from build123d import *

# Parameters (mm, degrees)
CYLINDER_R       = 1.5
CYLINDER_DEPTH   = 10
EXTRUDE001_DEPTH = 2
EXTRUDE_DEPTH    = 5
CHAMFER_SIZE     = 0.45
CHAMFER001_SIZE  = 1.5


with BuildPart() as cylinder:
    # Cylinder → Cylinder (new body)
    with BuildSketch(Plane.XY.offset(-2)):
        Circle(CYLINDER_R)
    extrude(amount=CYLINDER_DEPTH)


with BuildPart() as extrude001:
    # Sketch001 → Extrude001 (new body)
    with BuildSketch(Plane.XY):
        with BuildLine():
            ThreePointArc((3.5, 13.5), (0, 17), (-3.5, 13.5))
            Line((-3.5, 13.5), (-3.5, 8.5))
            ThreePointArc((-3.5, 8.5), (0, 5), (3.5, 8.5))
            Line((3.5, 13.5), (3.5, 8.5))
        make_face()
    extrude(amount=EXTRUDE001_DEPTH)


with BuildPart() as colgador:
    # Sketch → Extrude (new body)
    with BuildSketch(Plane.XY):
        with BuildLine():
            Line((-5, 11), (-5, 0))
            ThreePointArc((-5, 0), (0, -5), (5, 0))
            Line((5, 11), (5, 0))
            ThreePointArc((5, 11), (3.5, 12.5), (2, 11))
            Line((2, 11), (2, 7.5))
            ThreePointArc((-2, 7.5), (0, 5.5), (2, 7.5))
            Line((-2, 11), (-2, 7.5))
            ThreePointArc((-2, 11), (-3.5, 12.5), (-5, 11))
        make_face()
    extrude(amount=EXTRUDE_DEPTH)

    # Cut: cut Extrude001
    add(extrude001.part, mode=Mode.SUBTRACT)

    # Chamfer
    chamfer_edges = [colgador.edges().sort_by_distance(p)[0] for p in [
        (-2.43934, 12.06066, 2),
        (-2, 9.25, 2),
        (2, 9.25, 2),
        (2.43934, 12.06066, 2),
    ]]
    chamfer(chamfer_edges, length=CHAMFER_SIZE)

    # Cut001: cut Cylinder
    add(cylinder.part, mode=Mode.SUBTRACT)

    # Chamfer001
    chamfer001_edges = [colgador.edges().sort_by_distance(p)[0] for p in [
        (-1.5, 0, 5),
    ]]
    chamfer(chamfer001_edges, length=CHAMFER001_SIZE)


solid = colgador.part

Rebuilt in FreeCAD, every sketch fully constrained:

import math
import FreeCAD as App
import Part
import Sketcher


def edges_at(feature, points):
    """Names of the edges that pass closest to the given points."""
    edges = feature.Shape.Edges
    near = lambda p: min(range(len(edges)), key=lambda i: edges[i].distToShape(Part.Vertex(*p))[0])
    return sorted({f"Edge{near(p) + 1}" for p in points})

doc = App.newDocument("Part")
body = doc.addObject("PartDesign::Body", "Body")

# Sketch on XY plane
sketch1 = body.newObject("Sketcher::SketchObject", "Sketch")
sketch1.AttachmentSupport = (doc.getObject("XY_Plane"), [""])
sketch1.MapMode = "FlatFace"
sketch1.AttachmentOffset = App.Placement(App.Vector(0, 0, -2), App.Rotation())
sketch1.addGeometry(Part.Circle(App.Vector(0, 0, 0), App.Vector(0, 0, 1), 1.5), False)
sketch1.addConstraint([
    Sketcher.Constraint("Coincident", 0, 3, -1, 1),
    Sketcher.Constraint("Diameter", 0, 3.0),
])
pad1 = body.newObject("PartDesign::Pad", "Pad")
pad1.Profile = sketch1
pad1.Length = 10
body2 = doc.addObject("PartDesign::Body", "Body001")

# Sketch on XY plane
sketch2 = body2.newObject("Sketcher::SketchObject", "Sketch001")
sketch2.AttachmentSupport = (doc.getObject("XY_Plane001"), [""])
sketch2.MapMode = "FlatFace"
sketch2.addGeometry([
    Part.ArcOfCircle(Part.Circle(App.Vector(0, 13.5, 0), App.Vector(0, 0, 1), 3.5), math.radians(0), math.radians(180)),
    Part.LineSegment(App.Vector(-3.5, 13.5, 0), App.Vector(-3.5, 8.5, 0)),
    Part.ArcOfCircle(Part.Circle(App.Vector(0, 8.5, 0), App.Vector(0, 0, 1), 3.5), math.radians(180), math.radians(360)),
    Part.LineSegment(App.Vector(3.5, 8.5, 0), App.Vector(3.5, 13.5, 0)),
], False)
sketch2.addConstraint([
    Sketcher.Constraint("Tangent", 0, 2, 1, 1),
    Sketcher.Constraint("Tangent", 1, 2, 2, 1),
    Sketcher.Constraint("Tangent", 2, 2, 3, 1),
    Sketcher.Constraint("Tangent", 3, 2, 0, 1),
    Sketcher.Constraint("Vertical", 1),
    Sketcher.Constraint("Vertical", 3),
    Sketcher.Constraint("PointOnObject", 0, 3, -2),
    Sketcher.Constraint("Radius", 0, 3.5),
    Sketcher.Constraint("DistanceY", 1, 2, 1, 1, 5.0),
    Sketcher.Constraint("DistanceY", -1, 1, 0, 3, 13.5),
])
pad2 = body2.newObject("PartDesign::Pad", "Pad001")
pad2.Profile = sketch2
pad2.Length = 2
body3 = doc.addObject("PartDesign::Body", "Body002")

# Sketch on XY plane
sketch3 = body3.newObject("Sketcher::SketchObject", "Sketch002")
sketch3.AttachmentSupport = (doc.getObject("XY_Plane002"), [""])
sketch3.MapMode = "FlatFace"
sketch3.addGeometry([
    Part.LineSegment(App.Vector(-5, 11, 0), App.Vector(-5, 0, 0)),  # 0
    Part.ArcOfCircle(Part.Circle(App.Vector(0, 0, 0), App.Vector(0, 0, 1), 5), math.radians(180), math.radians(360)),  # 1
    Part.LineSegment(App.Vector(5, 0, 0), App.Vector(5, 11, 0)),  # 2
    Part.ArcOfCircle(Part.Circle(App.Vector(3.5, 11, 0), App.Vector(0, 0, 1), 1.5), math.radians(0), math.radians(180)),  # 3
    Part.LineSegment(App.Vector(2, 11, 0), App.Vector(2, 7.5, 0)),  # 4
    Part.ArcOfCircle(Part.Circle(App.Vector(0, 7.5, 0), App.Vector(0, 0, 1), 2), math.radians(180), math.radians(360)),  # 5
    Part.LineSegment(App.Vector(-2, 7.5, 0), App.Vector(-2, 11, 0)),  # 6
    Part.ArcOfCircle(Part.Circle(App.Vector(-3.5, 11, 0), App.Vector(0, 0, 1), 1.5), math.radians(0), math.radians(180)),  # 7
], False)
sketch3.addConstraint([
    Sketcher.Constraint("Tangent", 0, 2, 1, 1),
    Sketcher.Constraint("Tangent", 1, 2, 2, 1),
    Sketcher.Constraint("Tangent", 2, 2, 3, 1),
    Sketcher.Constraint("Tangent", 3, 2, 4, 1),
    Sketcher.Constraint("Tangent", 4, 2, 5, 2),
    Sketcher.Constraint("Tangent", 5, 1, 6, 1),
    Sketcher.Constraint("Tangent", 6, 2, 7, 1),
    Sketcher.Constraint("Tangent", 7, 2, 0, 1),
    Sketcher.Constraint("Vertical", 0),
    Sketcher.Constraint("Vertical", 2),
    Sketcher.Constraint("Vertical", 4),
    Sketcher.Constraint("Vertical", 6),
    Sketcher.Constraint("Coincident", 1, 3, -1, 1),
    Sketcher.Constraint("Equal", 3, 7),
    Sketcher.Constraint("Horizontal", 3, 3, 7, 3),
    Sketcher.Constraint("Radius", 1, 5.0),
    Sketcher.Constraint("Radius", 5, 2.0),
    Sketcher.Constraint("DistanceY", 0, 2, 0, 1, 11.0),
    Sketcher.Constraint("DistanceY", 4, 2, 4, 1, 3.5),
])
pad3 = body3.newObject("PartDesign::Pad", "Pad002")
pad3.Profile = sketch3
pad3.Length = 5
doc.recompute()

boolean = body3.newObject("PartDesign::Boolean", "Boolean")
boolean.Type = "Cut"
boolean.addObjects([body2])
doc.recompute()

chamfer = body3.newObject("PartDesign::Chamfer", "Chamfer")
chamfer.Base = (boolean, edges_at(boolean, [
    (-2.439, 12.061, 2),
    (-2, 9.25, 2),
    (2, 9.25, 2),
    (2.439, 12.061, 2),
]))
chamfer.Size = 0.45
doc.recompute()

boolean2 = body3.newObject("PartDesign::Boolean", "Boolean001")
boolean2.Type = "Cut"
boolean2.addObjects([body])
doc.recompute()

chamfer2 = body3.newObject("PartDesign::Chamfer", "Chamfer001")
chamfer2.Base = (boolean2, edges_at(boolean2, [(-1.5, 0, 5)]))
chamfer2.Size = 1.5

doc.recompute()
